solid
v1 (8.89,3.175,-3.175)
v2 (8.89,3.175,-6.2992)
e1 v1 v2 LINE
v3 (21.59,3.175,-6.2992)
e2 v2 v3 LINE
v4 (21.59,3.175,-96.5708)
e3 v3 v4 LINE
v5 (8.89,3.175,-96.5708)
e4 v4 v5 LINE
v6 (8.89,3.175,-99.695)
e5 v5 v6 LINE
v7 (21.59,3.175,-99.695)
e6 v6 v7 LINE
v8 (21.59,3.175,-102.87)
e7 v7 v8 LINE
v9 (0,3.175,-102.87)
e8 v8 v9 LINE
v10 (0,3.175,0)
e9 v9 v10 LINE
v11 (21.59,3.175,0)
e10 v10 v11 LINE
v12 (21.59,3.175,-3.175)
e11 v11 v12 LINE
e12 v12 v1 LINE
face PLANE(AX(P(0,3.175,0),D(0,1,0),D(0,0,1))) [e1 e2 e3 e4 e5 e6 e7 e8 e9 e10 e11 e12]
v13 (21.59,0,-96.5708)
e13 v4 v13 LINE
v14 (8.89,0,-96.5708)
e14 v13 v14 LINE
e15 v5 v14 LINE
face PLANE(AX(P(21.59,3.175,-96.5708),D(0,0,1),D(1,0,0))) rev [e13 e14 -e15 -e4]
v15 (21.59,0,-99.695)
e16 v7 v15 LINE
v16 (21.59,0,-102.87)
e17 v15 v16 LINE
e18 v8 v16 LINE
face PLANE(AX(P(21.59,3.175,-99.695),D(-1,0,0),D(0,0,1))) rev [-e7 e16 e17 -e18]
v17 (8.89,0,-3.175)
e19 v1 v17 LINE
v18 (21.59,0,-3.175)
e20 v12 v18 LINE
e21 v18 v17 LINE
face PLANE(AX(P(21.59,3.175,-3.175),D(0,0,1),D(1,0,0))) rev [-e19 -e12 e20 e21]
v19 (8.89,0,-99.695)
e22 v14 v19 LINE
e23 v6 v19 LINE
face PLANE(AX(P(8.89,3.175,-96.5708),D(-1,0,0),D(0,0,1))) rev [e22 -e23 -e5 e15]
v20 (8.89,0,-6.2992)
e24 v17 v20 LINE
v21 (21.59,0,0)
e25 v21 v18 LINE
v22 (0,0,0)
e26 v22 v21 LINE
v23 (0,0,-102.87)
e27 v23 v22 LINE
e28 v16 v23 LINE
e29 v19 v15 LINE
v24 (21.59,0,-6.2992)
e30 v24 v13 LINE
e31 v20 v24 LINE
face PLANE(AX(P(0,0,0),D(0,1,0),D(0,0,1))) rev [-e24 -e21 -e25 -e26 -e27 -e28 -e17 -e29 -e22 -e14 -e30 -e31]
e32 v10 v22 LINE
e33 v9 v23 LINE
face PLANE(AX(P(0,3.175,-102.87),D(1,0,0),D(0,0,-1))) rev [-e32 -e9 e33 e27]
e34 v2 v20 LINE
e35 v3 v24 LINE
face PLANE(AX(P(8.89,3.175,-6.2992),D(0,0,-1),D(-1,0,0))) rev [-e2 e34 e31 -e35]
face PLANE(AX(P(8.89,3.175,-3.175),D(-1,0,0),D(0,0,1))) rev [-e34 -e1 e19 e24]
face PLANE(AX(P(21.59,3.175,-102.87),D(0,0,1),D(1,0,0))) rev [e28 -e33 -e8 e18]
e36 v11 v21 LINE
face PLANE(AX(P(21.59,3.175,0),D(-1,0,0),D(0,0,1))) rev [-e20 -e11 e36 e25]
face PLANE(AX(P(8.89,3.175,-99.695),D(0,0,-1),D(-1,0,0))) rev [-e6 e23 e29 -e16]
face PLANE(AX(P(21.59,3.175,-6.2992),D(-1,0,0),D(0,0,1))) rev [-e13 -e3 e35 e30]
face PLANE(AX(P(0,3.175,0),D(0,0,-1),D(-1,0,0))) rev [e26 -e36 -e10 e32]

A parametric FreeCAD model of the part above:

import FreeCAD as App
import Part
import Sketcher
Q = App.Units.Quantity


def add_polygon(sketch, points):
    """Adds a closed chain of lines whose ends are joined by coincident constraints."""
    first, n = sketch.GeometryCount, len(points)
    for a, b in zip(points, points[1:] + points[:1]):
        sketch.addGeometry(Part.LineSegment(App.Vector(*a, 0), App.Vector(*b, 0)), False)
    for i in range(n):
        sketch.addConstraint(Sketcher.Constraint("Coincident", first + i, 2, first + (i + 1) % n, 1))

doc = App.newDocument("Part")
body = doc.addObject("PartDesign::Body", "Body")

# Sketch on XZ plane
sketch1 = doc.addObject("Sketcher::SketchObject", "Sketch")
body.addObject(sketch1)
sketch1.AttachmentSupport = (doc.XZ_Plane, [""])
sketch1.MapMode = "FlatFace"
add_polygon(sketch1, [(0, 0), (21.59, 0), (21.59, -3.175), (8.89, -3.175), (8.89, -6.2992), (21.59, -6.2992), (21.59, -96.5708), (8.89, -96.5708), (8.89, -99.695), (21.59, -99.695), (21.59, -102.87), (0, -102.87)])  # lines 0-11
sketch1.addConstraint([
    Sketcher.Constraint("Horizontal", 0),
    Sketcher.Constraint("Vertical", 1),
    Sketcher.Constraint("Horizontal", 2),
    Sketcher.Constraint("Vertical", 3),
    Sketcher.Constraint("Horizontal", 4),
    Sketcher.Constraint("Vertical", 5),
    Sketcher.Constraint("Horizontal", 6),
    Sketcher.Constraint("Vertical", 7),
    Sketcher.Constraint("Horizontal", 8),
    Sketcher.Constraint("Vertical", 9),
    Sketcher.Constraint("Horizontal", 10),
    Sketcher.Constraint("Vertical", 11),
    Sketcher.Constraint("Coincident", 11, 2, -1, 1),
    Sketcher.Constraint("Vertical", 1, 2, 4, 2),
    Sketcher.Constraint("Vertical", 3, 2, 6, 2),
    Sketcher.Constraint("Vertical", 5, 2, 8, 2),
    Sketcher.Constraint("Equal", 3, 7),
    Sketcher.Constraint("Equal", 1, 9),
    Sketcher.Constraint("DistanceX", 2, 2, 2, 1, Q("0.5 in")),
    Sketcher.Constraint("DistanceX", 0, 1, 0, 2, Q("0.85 in")),
    Sketcher.Constraint("DistanceY", 11, 1, 11, 2, Q("4.05 in")),
    Sketcher.Constraint("DistanceY", 7, 2, 2, 2, Q("3.8 in")),
    Sketcher.Constraint("DistanceY", 3, 2, 3, 1, Q("0.123 in")),
])
pad1 = doc.addObject("PartDesign::Pad", "Pad")
body.addObject(pad1)
pad1.Profile = sketch1
pad1.Length = Q("0.125 in")
pad1.Reversed = True

doc.recompute()
